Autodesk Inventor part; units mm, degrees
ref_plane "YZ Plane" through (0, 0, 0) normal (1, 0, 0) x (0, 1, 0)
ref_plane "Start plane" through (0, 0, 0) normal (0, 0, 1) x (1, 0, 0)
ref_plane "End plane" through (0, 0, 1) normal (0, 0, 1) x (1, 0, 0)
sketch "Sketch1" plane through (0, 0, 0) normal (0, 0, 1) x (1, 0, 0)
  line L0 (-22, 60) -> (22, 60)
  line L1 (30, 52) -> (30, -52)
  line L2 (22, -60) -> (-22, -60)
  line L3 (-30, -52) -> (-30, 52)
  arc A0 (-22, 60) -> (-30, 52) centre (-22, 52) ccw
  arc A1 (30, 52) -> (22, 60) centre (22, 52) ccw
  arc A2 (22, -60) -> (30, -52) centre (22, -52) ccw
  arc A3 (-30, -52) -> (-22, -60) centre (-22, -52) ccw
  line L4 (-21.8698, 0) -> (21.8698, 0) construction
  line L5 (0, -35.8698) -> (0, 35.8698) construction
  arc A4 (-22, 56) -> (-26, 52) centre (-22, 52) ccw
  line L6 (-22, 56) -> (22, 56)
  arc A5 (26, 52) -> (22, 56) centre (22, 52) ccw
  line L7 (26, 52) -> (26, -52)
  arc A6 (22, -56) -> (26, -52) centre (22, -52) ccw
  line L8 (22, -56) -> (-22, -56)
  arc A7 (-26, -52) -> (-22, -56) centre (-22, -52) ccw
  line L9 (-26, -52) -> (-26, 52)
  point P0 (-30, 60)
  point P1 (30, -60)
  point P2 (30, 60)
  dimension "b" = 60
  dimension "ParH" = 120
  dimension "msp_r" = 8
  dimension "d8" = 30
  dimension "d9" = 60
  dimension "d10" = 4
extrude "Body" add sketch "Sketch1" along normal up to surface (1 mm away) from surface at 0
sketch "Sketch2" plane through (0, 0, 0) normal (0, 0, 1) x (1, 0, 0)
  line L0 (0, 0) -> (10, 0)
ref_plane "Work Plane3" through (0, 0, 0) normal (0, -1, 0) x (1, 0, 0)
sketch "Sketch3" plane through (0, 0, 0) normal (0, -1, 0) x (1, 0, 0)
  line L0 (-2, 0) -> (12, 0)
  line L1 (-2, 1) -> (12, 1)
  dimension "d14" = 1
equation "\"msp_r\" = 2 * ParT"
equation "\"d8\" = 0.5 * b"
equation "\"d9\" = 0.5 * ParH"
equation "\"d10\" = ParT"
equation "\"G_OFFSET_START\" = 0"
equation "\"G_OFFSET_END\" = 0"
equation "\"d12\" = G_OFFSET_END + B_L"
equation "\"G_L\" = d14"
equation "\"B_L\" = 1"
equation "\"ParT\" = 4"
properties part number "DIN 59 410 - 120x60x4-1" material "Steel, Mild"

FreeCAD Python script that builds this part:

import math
import FreeCAD as App
import Part
import Sketcher

V = App.Vector

doc = App.newDocument("Part")
body = doc.addObject("PartDesign::Body", "Body")

# Sketch on XY plane
sketch1 = body.newObject("Sketcher::SketchObject", "Sketch")
sketch1.AttachmentSupport = (doc.getObject("XY_Plane"), [""])
sketch1.MapMode = "FlatFace"
sketch1.addGeometry(Part.LineSegment(V(22, 60, 0), V(-22, 60, 0)), False)
sketch1.addGeometry(Part.ArcOfCircle(Part.Circle(V(-22, 52, 0), V(0, 0, 1), 8), math.radians(90), math.radians(180)), False)
sketch1.addGeometry(Part.LineSegment(V(-30, 52, 0), V(-30, -52, 0)), False)
sketch1.addGeometry(Part.ArcOfCircle(Part.Circle(V(-22, -52, 0), V(0, 0, 1), 8), math.radians(180), math.radians(270)), False)
sketch1.addGeometry(Part.LineSegment(V(-22, -60, 0), V(22, -60, 0)), False)
sketch1.addGeometry(Part.ArcOfCircle(Part.Circle(V(22, -52, 0), V(0, 0, 1), 8), math.radians(-90), math.radians(0)), False)
sketch1.addGeometry(Part.LineSegment(V(30, -52, 0), V(30, 52, 0)), False)
sketch1.addGeometry(Part.ArcOfCircle(Part.Circle(V(22, 52, 0), V(0, 0, 1), 8), math.radians(0), math.radians(90)), False)
sketch1.addGeometry(Part.ArcOfCircle(Part.Circle(V(-22, 52, 0), V(0, 0, 1), 4), math.radians(90), math.radians(180)), False)
sketch1.addGeometry(Part.LineSegment(V(-22, 56, 0), V(22, 56, 0)), False)
sketch1.addGeometry(Part.ArcOfCircle(Part.Circle(V(22, 52, 0), V(0, 0, 1), 4), math.radians(0), math.radians(90)), False)
sketch1.addGeometry(Part.LineSegment(V(26, 52, 0), V(26, -52, 0)), False)
sketch1.addGeometry(Part.ArcOfCircle(Part.Circle(V(22, -52, 0), V(0, 0, 1), 4), math.radians(-90), math.radians(0)), False)
sketch1.addGeometry(Part.LineSegment(V(22, -56, 0), V(-22, -56, 0)), False)
sketch1.addGeometry(Part.ArcOfCircle(Part.Circle(V(-22, -52, 0), V(0, 0, 1), 4), math.radians(180), math.radians(270)), False)
sketch1.addGeometry(Part.LineSegment(V(-26, -52, 0), V(-26, 52, 0)), False)
sketch1.addConstraint(Sketcher.Constraint("Tangent", 0, 2, 1, 1))
sketch1.addConstraint(Sketcher.Constraint("Tangent", 1, 2, 2, 1))
sketch1.addConstraint(Sketcher.Constraint("Tangent", 2, 2, 3, 1))
sketch1.addConstraint(Sketcher.Constraint("Tangent", 3, 2, 4, 1))
sketch1.addConstraint(Sketcher.Constraint("Tangent", 4, 2, 5, 1))
sketch1.addConstraint(Sketcher.Constraint("Tangent", 5, 2, 6, 1))
sketch1.addConstraint(Sketcher.Constraint("Tangent", 6, 2, 7, 1))
sketch1.addConstraint(Sketcher.Constraint("Tangent", 7, 2, 0, 1))
sketch1.addConstraint(Sketcher.Constraint("Tangent", 8, 1, 9, 1))
sketch1.addConstraint(Sketcher.Constraint("Tangent", 9, 2, 10, 2))
sketch1.addConstraint(Sketcher.Constraint("Tangent", 10, 1, 11, 1))
sketch1.addConstraint(Sketcher.Constraint("Tangent", 11, 2, 12, 2))
sketch1.addConstraint(Sketcher.Constraint("Tangent", 12, 1, 13, 1))
sketch1.addConstraint(Sketcher.Constraint("Tangent", 13, 2, 14, 2))
sketch1.addConstraint(Sketcher.Constraint("Tangent", 14, 1, 15, 1))
sketch1.addConstraint(Sketcher.Constraint("Tangent", 15, 2, 8, 2))
sketch1.addConstraint(Sketcher.Constraint("Horizontal", 0))
sketch1.addConstraint(Sketcher.Constraint("Vertical", 2))
sketch1.addConstraint(Sketcher.Constraint("Horizontal", 4))
sketch1.addConstraint(Sketcher.Constraint("Vertical", 6))
sketch1.addConstraint(Sketcher.Constraint("Horizontal", 9))
sketch1.addConstraint(Sketcher.Constraint("Vertical", 11))
sketch1.addConstraint(Sketcher.Constraint("Horizontal", 13))
sketch1.addConstraint(Sketcher.Constraint("Vertical", 15))
sketch1.addConstraint(Sketcher.Constraint("Coincident", 8, 3, 1, 3))
sketch1.addConstraint(Sketcher.Constraint("Coincident", 10, 3, 7, 3))
sketch1.addConstraint(Sketcher.Constraint("Coincident", 12, 3, 5, 3))
sketch1.addConstraint(Sketcher.Constraint("Equal", 1, 3))
sketch1.addConstraint(Sketcher.Constraint("Equal", 3, 5))
sketch1.addConstraint(Sketcher.Constraint("Equal", 5, 7))
sketch1.addConstraint(Sketcher.Constraint("Equal", 12, 14))
sketch1.addConstraint(Sketcher.Constraint("Symmetric", 1, 3, 5, 3, -1, 1))
sketch1.addConstraint(Sketcher.Constraint("Radius", 1, 8.0))
sketch1.addConstraint(Sketcher.Constraint("Radius", 8, 4.0))
sketch1.addConstraint(Sketcher.Constraint("DistanceY", -1, 1, 0, 2, 60.0))
sketch1.addConstraint(Sketcher.Constraint("DistanceX", 1, 2, -1, 1, 30.0))
pad1 = body.newObject("PartDesign::Pad", "Pad")
pad1.Profile = sketch1
pad1.Length = 1

doc.recompute()
